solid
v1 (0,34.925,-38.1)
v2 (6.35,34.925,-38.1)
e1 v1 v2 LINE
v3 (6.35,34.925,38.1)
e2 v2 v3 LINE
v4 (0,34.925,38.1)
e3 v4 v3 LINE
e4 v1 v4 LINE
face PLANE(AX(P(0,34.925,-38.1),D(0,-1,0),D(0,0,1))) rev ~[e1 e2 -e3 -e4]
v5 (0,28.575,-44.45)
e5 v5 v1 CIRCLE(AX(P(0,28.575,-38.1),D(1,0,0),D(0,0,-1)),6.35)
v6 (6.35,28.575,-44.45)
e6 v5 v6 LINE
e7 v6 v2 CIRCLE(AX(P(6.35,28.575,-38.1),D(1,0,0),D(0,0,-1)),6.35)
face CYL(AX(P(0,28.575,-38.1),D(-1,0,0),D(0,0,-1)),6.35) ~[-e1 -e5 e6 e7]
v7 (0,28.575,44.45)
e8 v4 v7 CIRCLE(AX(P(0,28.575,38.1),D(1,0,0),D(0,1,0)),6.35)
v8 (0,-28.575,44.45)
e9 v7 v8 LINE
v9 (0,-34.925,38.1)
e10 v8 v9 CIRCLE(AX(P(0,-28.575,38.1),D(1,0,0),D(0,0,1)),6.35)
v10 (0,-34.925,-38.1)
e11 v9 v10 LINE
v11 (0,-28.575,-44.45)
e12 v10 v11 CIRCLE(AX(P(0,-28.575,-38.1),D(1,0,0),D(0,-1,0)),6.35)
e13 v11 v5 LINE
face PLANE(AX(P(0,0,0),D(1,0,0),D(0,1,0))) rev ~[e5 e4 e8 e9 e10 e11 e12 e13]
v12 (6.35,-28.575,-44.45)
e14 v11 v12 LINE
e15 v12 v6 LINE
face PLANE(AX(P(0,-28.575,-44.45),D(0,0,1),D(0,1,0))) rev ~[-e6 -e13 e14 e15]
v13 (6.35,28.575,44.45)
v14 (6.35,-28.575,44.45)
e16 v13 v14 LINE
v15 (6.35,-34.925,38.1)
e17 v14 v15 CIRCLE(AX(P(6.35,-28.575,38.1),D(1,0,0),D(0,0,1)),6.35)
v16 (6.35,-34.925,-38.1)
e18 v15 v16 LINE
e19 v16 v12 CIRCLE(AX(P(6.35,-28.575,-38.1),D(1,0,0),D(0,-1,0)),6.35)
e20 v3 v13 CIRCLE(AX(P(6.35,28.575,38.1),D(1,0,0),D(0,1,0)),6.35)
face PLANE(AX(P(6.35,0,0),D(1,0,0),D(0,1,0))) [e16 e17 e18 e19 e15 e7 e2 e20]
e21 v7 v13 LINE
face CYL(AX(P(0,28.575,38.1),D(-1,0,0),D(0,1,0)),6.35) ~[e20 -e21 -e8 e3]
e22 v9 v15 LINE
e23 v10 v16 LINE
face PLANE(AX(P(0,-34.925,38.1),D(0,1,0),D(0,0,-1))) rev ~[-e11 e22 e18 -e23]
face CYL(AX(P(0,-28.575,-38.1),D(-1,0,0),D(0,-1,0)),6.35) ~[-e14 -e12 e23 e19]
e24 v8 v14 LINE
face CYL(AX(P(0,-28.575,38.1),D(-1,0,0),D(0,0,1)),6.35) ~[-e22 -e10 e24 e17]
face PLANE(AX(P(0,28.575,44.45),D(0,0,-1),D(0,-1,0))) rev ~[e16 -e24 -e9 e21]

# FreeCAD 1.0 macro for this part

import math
import FreeCAD as App
import Part
import Sketcher

V = App.Vector
Q = App.Units.Quantity

doc = App.newDocument("Part")
body = doc.addObject("PartDesign::Body", "Body")

# Sketch on YZ plane
sketch1 = body.newObject("Sketcher::SketchObject", "Sketch")
sketch1.AttachmentSupport = (doc.getObject("YZ_Plane"), [""])
sketch1.MapMode = "FlatFace"
sketch1.addGeometry(Part.ArcOfCircle(Part.Circle(V(32, 38, 0), V(0, 0, 1), 10), math.radians(0), math.radians(90)), False)
sketch1.addGeometry(Part.LineSegment(V(32, 48, 0), V(-32, 48, 0)), False)
sketch1.addGeometry(Part.ArcOfCircle(Part.Circle(V(-32, 38, 0), V(0, 0, 1), 10), math.radians(90), math.radians(180)), False)
sketch1.addGeometry(Part.LineSegment(V(-41, 38, 0), V(-41, -38, 0)), False)
sketch1.addGeometry(Part.ArcOfCircle(Part.Circle(V(-32, -38, 0), V(0, 0, 1), 10), math.radians(180), math.radians(270)), False)
sketch1.addGeometry(Part.LineSegment(V(-32, -48, 0), V(32, -48, 0)), False)
sketch1.addGeometry(Part.ArcOfCircle(Part.Circle(V(32, -38, 0), V(0, 0, 1), 10), math.radians(-90), math.radians(0)), False)
sketch1.addGeometry(Part.LineSegment(V(41, -38, 0), V(41, 38, 0)), False)
sketch1.addConstraint(Sketcher.Constraint("Tangent", 0, 2, 1, 1))
sketch1.addConstraint(Sketcher.Constraint("Tangent", 1, 2, 2, 1))
sketch1.addConstraint(Sketcher.Constraint("Tangent", 2, 2, 3, 1))
sketch1.addConstraint(Sketcher.Constraint("Tangent", 3, 2, 4, 1))
sketch1.addConstraint(Sketcher.Constraint("Tangent", 4, 2, 5, 1))
sketch1.addConstraint(Sketcher.Constraint("Tangent", 5, 2, 6, 1))
sketch1.addConstraint(Sketcher.Constraint("Tangent", 6, 2, 7, 1))
sketch1.addConstraint(Sketcher.Constraint("Tangent", 7, 2, 0, 1))
sketch1.addConstraint(Sketcher.Constraint("Horizontal", 1))
sketch1.addConstraint(Sketcher.Constraint("Vertical", 3))
sketch1.addConstraint(Sketcher.Constraint("Horizontal", 5))
sketch1.addConstraint(Sketcher.Constraint("Vertical", 7))
sketch1.addConstraint(Sketcher.Constraint("Equal", 0, 2))
sketch1.addConstraint(Sketcher.Constraint("Equal", 2, 4))
sketch1.addConstraint(Sketcher.Constraint("Equal", 4, 6))
sketch1.addConstraint(Sketcher.Constraint("Symmetric", 0, 3, 4, 3, -1, 1))
sketch1.addConstraint(Sketcher.Constraint("DistanceY", 3, 2, 3, 1, Q("3 in")))
sketch1.addConstraint(Sketcher.Constraint("DistanceX", 1, 2, 1, 1, Q("2.5 in")))
sketch1.addConstraint(Sketcher.Constraint("Radius", 0, Q("0.375 in")))
pad1 = body.newObject("PartDesign::Pad", "Pad")
pad1.Profile = sketch1
pad1.Length = Q("0.25 in")
body2 = doc.addObject("PartDesign::Body", "Body001")

# Sketch on YZ plane
sketch2 = body2.newObject("Sketcher::SketchObject", "Sketch001")
sketch2.AttachmentSupport = (doc.getObject("YZ_Plane001"), [""])
sketch2.MapMode = "FlatFace"
sketch2.addGeometry(Part.ArcOfCircle(Part.Circle(V(29, 38, 0), V(0, 0, 1), 6), math.radians(0), math.radians(90)), False)
sketch2.addGeometry(Part.LineSegment(V(29, 44, 0), V(-29, 44, 0)), False)
sketch2.addGeometry(Part.ArcOfCircle(Part.Circle(V(-29, 38, 0), V(0, 0, 1), 6), math.radians(90), math.radians(180)), False)
sketch2.addGeometry(Part.LineSegment(V(-35, 38, 0), V(-35, -38, 0)), False)
sketch2.addGeometry(Part.ArcOfCircle(Part.Circle(V(-29, -38, 0), V(0, 0, 1), 6), math.radians(180), math.radians(270)), False)
sketch2.addGeometry(Part.LineSegment(V(-29, -44, 0), V(29, -44, 0)), False)
sketch2.addGeometry(Part.ArcOfCircle(Part.Circle(V(29, -38, 0), V(0, 0, 1), 6), math.radians(-90), math.radians(0)), False)
sketch2.addGeometry(Part.LineSegment(V(35, -38, 0), V(35, 38, 0)), False)
sketch2.addConstraint(Sketcher.Constraint("Tangent", 0, 2, 1, 1))
sketch2.addConstraint(Sketcher.Constraint("Tangent", 1, 2, 2, 1))
sketch2.addConstraint(Sketcher.Constraint("Tangent", 2, 2, 3, 1))
sketch2.addConstraint(Sketcher.Constraint("Tangent", 3, 2, 4, 1))
sketch2.addConstraint(Sketcher.Constraint("Tangent", 4, 2, 5, 1))
sketch2.addConstraint(Sketcher.Constraint("Tangent", 5, 2, 6, 1))
sketch2.addConstraint(Sketcher.Constraint("Tangent", 6, 2, 7, 1))
sketch2.addConstraint(Sketcher.Constraint("Tangent", 7, 2, 0, 1))
sketch2.addConstraint(Sketcher.Constraint("Horizontal", 1))
sketch2.addConstraint(Sketcher.Constraint("Vertical", 3))
sketch2.addConstraint(Sketcher.Constraint("Horizontal", 5))
sketch2.addConstraint(Sketcher.Constraint("Vertical", 7))
sketch2.addConstraint(Sketcher.Constraint("Equal", 0, 2))
sketch2.addConstraint(Sketcher.Constraint("Equal", 2, 4))
sketch2.addConstraint(Sketcher.Constraint("Equal", 4, 6))
sketch2.addConstraint(Sketcher.Constraint("Symmetric", 0, 3, 4, 3, -1, 1))
sketch2.addConstraint(Sketcher.Constraint("DistanceY", 3, 2, 3, 1, Q("3 in")))
sketch2.addConstraint(Sketcher.Constraint("Radius", 0, Q("0.25 in")))
sketch2.addConstraint(Sketcher.Constraint("DistanceX", 1, 2, 1, 1, Q("2.25 in")))
pad2 = body2.newObject("PartDesign::Pad", "Pad001")
pad2.Profile = sketch2
pad2.Length = Q("0.25 in")
body.Visibility = False

doc.recompute()
